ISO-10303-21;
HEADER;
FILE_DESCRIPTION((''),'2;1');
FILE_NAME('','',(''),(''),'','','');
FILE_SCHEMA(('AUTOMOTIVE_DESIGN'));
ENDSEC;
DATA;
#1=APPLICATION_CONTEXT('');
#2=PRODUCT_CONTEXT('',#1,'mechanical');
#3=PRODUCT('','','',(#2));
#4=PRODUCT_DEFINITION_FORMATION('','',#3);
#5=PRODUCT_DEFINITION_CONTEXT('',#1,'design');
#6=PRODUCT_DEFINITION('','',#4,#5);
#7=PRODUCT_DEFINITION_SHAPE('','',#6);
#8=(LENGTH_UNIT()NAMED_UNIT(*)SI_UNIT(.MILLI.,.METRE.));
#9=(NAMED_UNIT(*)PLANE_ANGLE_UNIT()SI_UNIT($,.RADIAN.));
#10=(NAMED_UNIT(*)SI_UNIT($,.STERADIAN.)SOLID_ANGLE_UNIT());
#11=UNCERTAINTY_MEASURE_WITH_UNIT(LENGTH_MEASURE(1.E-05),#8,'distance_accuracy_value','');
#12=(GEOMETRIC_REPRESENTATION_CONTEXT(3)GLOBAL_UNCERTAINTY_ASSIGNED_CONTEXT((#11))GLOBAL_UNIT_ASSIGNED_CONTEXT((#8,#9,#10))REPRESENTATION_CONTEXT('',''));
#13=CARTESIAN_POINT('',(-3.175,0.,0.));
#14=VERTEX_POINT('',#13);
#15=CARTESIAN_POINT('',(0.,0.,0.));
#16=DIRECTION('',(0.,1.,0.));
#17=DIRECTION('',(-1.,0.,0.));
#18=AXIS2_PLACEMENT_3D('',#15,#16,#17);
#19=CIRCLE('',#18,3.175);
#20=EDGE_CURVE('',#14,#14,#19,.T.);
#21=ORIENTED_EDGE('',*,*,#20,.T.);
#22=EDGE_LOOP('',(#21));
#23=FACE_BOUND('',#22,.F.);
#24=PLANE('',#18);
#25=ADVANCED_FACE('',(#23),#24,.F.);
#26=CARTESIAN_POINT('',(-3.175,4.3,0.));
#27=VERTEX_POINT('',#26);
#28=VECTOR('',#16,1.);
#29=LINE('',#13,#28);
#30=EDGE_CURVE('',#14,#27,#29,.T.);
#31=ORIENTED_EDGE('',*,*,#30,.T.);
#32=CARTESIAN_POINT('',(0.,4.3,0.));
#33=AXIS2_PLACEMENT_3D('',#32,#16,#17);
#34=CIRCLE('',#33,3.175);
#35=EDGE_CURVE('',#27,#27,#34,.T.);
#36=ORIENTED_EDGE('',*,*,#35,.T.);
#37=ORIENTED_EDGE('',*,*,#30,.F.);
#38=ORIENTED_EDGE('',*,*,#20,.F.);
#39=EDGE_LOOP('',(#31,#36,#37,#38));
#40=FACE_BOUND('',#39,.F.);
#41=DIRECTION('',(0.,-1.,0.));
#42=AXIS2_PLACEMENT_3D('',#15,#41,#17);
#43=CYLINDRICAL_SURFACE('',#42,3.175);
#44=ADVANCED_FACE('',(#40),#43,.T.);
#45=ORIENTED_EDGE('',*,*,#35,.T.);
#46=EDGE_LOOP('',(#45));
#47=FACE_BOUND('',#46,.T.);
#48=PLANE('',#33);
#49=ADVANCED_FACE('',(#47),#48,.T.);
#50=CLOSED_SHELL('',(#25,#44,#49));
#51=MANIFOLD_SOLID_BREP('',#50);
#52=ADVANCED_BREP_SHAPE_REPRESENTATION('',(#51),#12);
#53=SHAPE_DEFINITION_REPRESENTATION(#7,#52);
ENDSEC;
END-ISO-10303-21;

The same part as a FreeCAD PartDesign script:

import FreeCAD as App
import Part
import Sketcher

V = App.Vector
Q = App.Units.Quantity

doc = App.newDocument("Part")
body = doc.addObject("PartDesign::Body", "Body")

# Sketch on XZ plane
sketch1 = doc.addObject("Sketcher::SketchObject", "Sketch")
body.addObject(sketch1)
sketch1.AttachmentSupport = (doc.XZ_Plane, [""])
sketch1.MapMode = "FlatFace"
sketch1.addGeometry(Part.Circle(V(0, 0, 0), V(0, 0, 1), 3.2), False)
sketch1.addConstraint(Sketcher.Constraint("Coincident", 0, 3, -1, 1))
sketch1.addConstraint(Sketcher.Constraint("Diameter", 0, Q("0.25 in")))
pad1 = doc.addObject("PartDesign::Pad", "Pad")
body.addObject(pad1)
pad1.Profile = sketch1
pad1.Length = Q("0.1692913 in")
pad1.Reversed = True

doc.recompute()
